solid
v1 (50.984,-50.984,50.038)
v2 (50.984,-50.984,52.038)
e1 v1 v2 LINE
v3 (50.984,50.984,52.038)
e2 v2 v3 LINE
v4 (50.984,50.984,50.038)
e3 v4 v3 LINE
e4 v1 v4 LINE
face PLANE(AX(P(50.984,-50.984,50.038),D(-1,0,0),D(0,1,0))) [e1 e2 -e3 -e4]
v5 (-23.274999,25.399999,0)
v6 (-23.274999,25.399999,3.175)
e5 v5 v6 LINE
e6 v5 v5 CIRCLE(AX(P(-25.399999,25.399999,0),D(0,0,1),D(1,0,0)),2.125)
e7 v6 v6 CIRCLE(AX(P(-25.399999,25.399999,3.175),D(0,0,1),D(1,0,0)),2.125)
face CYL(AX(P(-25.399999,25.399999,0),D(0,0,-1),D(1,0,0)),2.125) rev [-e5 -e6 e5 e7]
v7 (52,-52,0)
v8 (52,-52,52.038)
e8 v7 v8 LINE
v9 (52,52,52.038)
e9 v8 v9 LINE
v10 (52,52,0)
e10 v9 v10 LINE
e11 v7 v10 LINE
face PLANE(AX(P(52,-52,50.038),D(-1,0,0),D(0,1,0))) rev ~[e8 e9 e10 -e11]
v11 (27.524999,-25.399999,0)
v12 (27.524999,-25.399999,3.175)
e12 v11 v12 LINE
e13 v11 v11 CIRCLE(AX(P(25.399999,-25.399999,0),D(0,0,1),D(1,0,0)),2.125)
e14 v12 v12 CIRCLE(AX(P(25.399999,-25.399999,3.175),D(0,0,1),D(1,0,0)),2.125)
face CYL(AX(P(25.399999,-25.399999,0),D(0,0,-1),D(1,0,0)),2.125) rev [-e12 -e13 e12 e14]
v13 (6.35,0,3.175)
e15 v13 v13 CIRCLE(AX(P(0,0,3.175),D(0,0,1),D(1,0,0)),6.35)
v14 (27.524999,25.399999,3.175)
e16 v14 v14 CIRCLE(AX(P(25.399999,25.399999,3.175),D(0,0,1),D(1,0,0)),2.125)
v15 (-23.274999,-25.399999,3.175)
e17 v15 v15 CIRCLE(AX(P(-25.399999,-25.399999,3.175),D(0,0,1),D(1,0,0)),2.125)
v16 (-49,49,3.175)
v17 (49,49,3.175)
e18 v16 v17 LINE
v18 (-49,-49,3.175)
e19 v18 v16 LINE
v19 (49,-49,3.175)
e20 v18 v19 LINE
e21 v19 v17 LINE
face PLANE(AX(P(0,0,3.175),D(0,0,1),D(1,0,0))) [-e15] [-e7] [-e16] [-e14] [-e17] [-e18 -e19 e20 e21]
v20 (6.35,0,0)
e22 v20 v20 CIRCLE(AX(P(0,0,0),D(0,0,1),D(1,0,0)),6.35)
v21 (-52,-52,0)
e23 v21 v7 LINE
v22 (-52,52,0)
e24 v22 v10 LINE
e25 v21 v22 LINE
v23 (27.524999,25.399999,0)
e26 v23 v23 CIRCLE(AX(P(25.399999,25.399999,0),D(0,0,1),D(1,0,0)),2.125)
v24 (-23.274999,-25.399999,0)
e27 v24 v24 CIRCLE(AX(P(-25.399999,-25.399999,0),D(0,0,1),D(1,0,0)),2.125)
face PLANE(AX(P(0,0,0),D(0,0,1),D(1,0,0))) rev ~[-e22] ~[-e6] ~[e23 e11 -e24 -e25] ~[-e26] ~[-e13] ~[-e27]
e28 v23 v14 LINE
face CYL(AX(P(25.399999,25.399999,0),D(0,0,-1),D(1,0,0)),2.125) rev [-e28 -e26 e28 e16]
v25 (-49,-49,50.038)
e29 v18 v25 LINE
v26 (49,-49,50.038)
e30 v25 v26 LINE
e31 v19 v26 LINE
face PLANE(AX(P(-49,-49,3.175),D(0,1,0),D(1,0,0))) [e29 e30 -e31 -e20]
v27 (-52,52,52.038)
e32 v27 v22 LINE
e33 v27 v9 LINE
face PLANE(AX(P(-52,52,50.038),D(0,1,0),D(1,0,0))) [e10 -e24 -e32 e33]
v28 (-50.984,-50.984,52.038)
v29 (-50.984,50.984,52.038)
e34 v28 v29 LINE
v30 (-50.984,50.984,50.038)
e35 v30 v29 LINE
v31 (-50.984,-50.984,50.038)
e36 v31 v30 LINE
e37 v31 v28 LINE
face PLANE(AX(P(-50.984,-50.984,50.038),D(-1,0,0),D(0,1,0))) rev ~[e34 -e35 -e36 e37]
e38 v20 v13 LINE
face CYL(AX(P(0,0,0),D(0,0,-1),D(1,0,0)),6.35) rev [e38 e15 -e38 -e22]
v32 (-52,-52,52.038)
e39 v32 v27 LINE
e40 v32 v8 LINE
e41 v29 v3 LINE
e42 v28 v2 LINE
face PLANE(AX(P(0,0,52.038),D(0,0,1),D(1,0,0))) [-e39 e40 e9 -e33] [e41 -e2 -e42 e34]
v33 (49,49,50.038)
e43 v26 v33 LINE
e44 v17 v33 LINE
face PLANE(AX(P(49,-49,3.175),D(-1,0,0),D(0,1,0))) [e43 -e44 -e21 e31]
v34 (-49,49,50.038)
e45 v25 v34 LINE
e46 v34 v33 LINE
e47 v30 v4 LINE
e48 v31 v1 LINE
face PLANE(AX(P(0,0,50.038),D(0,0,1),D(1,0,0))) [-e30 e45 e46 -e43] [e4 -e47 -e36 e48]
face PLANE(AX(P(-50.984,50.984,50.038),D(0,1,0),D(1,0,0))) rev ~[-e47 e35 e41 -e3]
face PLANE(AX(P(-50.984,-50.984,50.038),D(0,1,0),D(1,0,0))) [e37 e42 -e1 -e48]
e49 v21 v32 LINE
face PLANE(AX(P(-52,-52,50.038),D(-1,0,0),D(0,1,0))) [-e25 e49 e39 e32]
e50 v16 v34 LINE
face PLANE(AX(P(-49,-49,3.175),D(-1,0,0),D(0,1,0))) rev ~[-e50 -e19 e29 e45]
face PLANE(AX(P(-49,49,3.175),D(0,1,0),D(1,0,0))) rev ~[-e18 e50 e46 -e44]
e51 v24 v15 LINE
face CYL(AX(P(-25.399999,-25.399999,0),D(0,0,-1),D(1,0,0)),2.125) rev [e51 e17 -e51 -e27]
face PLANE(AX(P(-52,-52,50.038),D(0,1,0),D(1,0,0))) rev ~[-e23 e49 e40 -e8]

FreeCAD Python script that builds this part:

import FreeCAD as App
import Part
import Sketcher

V = App.Vector

doc = App.newDocument("Part")
params = doc.addObject("Spreadsheet::Sheet", "Params")
for row, (alias, value) in enumerate([
    ("sketch1_diameter", "12.7 mm"),
    ("sketch1_diameter2", "4.25 mm"),
    ("sketch1_width", "104 mm"),
    ("pad1_length", "3.175 mm"),
    ("sketch2_width", "104 mm"),
    ("sketch2_width2", "98 mm"),
    ("pad2_length", "46.863 mm"),
    ("sketch3_width", "104 mm"),
    ("pad3_length", "2 mm"),
], start=1):
    params.set(f"A{row}", alias)
    params.set(f"B{row}", "=" + value)
    params.setAlias(f"B{row}", alias)

body = doc.addObject("PartDesign::Body", "Body")

sketch1 = doc.addObject("Sketcher::SketchObject", "Sketch")
body.addObject(sketch1)
sketch1.AttachmentSupport = (doc.XY_Plane, [""])
sketch1.MapMode = "FlatFace"
sketch1.addGeometry(Part.LineSegment(V(-52, 52, 0), V(-52, -52, 0)), False)
sketch1.addGeometry(Part.LineSegment(V(-52, -52, 0), V(52, -52, 0)), False)
sketch1.addGeometry(Part.LineSegment(V(52, -52, 0), V(52, 52, 0)), False)
sketch1.addGeometry(Part.LineSegment(V(52, 52, 0), V(-52, 52, 0)), False)
sketch1.addGeometry(Part.Circle(V(-25.4, -25.4, 0), V(0, 0, 1), 2.1), False)
sketch1.addGeometry(Part.Circle(V(0, 0, 0), V(0, 0, 1), 6.3), False)
sketch1.addGeometry(Part.Circle(V(25.4, -25.4, 0), V(0, 0, 1), 2.1), False)
sketch1.addGeometry(Part.Circle(V(-25.4, 25.4, 0), V(0, 0, 1), 2.1), False)
sketch1.addGeometry(Part.Circle(V(25.4, 25.4, 0), V(0, 0, 1), 2.1), False)
sketch1.addConstraint(Sketcher.Constraint("Coincident", 0, 2, 1, 1))
sketch1.addConstraint(Sketcher.Constraint("Coincident", 1, 2, 2, 1))
sketch1.addConstraint(Sketcher.Constraint("Coincident", 2, 2, 3, 1))
sketch1.addConstraint(Sketcher.Constraint("Coincident", 3, 2, 0, 1))
sketch1.addConstraint(Sketcher.Constraint("Vertical", 0))
sketch1.addConstraint(Sketcher.Constraint("Horizontal", 1))
sketch1.addConstraint(Sketcher.Constraint("Vertical", 2))
sketch1.addConstraint(Sketcher.Constraint("Horizontal", 3))
sketch1.addConstraint(Sketcher.Constraint("Coincident", 5, 3, -1, 1))
sketch1.addConstraint(Sketcher.Constraint("Equal", 4, 6))
sketch1.addConstraint(Sketcher.Constraint("Equal", 6, 7))
sketch1.addConstraint(Sketcher.Constraint("Equal", 7, 8))
sketch1.addConstraint(Sketcher.Constraint("Symmetric", 6, 3, 7, 3, -1, 1))
sketch1.addConstraint(Sketcher.Constraint("Symmetric", 4, 3, 8, 3, -1, 1))
sketch1.addConstraint(Sketcher.Constraint("Symmetric", 0, 2, 2, 2, -1, 1))
sketch1.addConstraint(Sketcher.Constraint("Symmetric", 4, 3, 6, 3, -2))
sketch1.addConstraint(Sketcher.Constraint("Equal", 3, 0))
sketch1.addConstraint(Sketcher.Constraint("Diameter", 5, 12.7))
sketch1.addConstraint(Sketcher.Constraint("Diameter", 4, 4.25))
sketch1.addConstraint(Sketcher.Constraint("DistanceX", 1, 1, 1, 2, 104.0))
sketch1.addConstraint(Sketcher.Constraint("DistanceX", 4, 3, -1, 1, 25.399999))
sketch1.addConstraint(Sketcher.Constraint("DistanceY", 4, 3, -1, 1, 25.399999))
sketch1.setExpression("Constraints[17]", "Params.sketch1_diameter")
sketch1.setExpression("Constraints[18]", "Params.sketch1_diameter2")
sketch1.setExpression("Constraints[19]", "Params.sketch1_width")
pad1 = doc.addObject("PartDesign::Pad", "Pad")
body.addObject(pad1)
pad1.Profile = sketch1
pad1.setExpression("Length", "Params.pad1_length")

sketch2 = doc.addObject("Sketcher::SketchObject", "Sketch001")
body.addObject(sketch2)
sketch2.AttachmentSupport = (doc.XY_Plane, [""])
sketch2.MapMode = "FlatFace"
sketch2.AttachmentOffset = App.Placement(V(0, 0, 3.175), App.Rotation())
sketch2.addGeometry(Part.LineSegment(V(-52, 52, 0), V(-52, -52, 0)), False)
sketch2.addGeometry(Part.LineSegment(V(-52, -52, 0), V(52, -52, 0)), False)
sketch2.addGeometry(Part.LineSegment(V(52, -52, 0), V(52, 52, 0)), False)
sketch2.addGeometry(Part.LineSegment(V(52, 52, 0), V(-52, 52, 0)), False)
sketch2.addGeometry(Part.LineSegment(V(49, -49, 0), V(-49, -49, 0)), False)
sketch2.addGeometry(Part.LineSegment(V(-49, -49, 0), V(-49, 49, 0)), False)
sketch2.addGeometry(Part.LineSegment(V(-49, 49, 0), V(49, 49, 0)), False)
sketch2.addGeometry(Part.LineSegment(V(49, 49, 0), V(49, -49, 0)), False)
sketch2.addConstraint(Sketcher.Constraint("Coincident", 0, 2, 1, 1))
sketch2.addConstraint(Sketcher.Constraint("Coincident", 1, 2, 2, 1))
sketch2.addConstraint(Sketcher.Constraint("Coincident", 2, 2, 3, 1))
sketch2.addConstraint(Sketcher.Constraint("Coincident", 3, 2, 0, 1))
sketch2.addConstraint(Sketcher.Constraint("Coincident", 4, 2, 5, 1))
sketch2.addConstraint(Sketcher.Constraint("Coincident", 5, 2, 6, 1))
sketch2.addConstraint(Sketcher.Constraint("Coincident", 6, 2, 7, 1))
sketch2.addConstraint(Sketcher.Constraint("Coincident", 7, 2, 4, 1))
sketch2.addConstraint(Sketcher.Constraint("Vertical", 0))
sketch2.addConstraint(Sketcher.Constraint("Horizontal", 1))
sketch2.addConstraint(Sketcher.Constraint("Vertical", 2))
sketch2.addConstraint(Sketcher.Constraint("Horizontal", 3))
sketch2.addConstraint(Sketcher.Constraint("Horizontal", 4))
sketch2.addConstraint(Sketcher.Constraint("Vertical", 5))
sketch2.addConstraint(Sketcher.Constraint("Horizontal", 6))
sketch2.addConstraint(Sketcher.Constraint("Vertical", 7))
sketch2.addConstraint(Sketcher.Constraint("Symmetric", 0, 2, 2, 2, -1, 1))
sketch2.addConstraint(Sketcher.Constraint("Symmetric", 4, 2, 6, 2, -1, 1))
sketch2.addConstraint(Sketcher.Constraint("Equal", 3, 0))
sketch2.addConstraint(Sketcher.Constraint("Equal", 6, 5))
sketch2.addConstraint(Sketcher.Constraint("DistanceX", 1, 1, 1, 2, 104.0))
sketch2.addConstraint(Sketcher.Constraint("DistanceX", 4, 2, 4, 1, 98.0))
sketch2.setExpression("Constraints[20]", "Params.sketch2_width")
sketch2.setExpression("Constraints[21]", "Params.sketch2_width2")
pad2 = doc.addObject("PartDesign::Pad", "Pad001")
body.addObject(pad2)
pad2.Profile = sketch2
pad2.setExpression("Length", "Params.pad2_length")

sketch3 = doc.addObject("Sketcher::SketchObject", "Sketch002")
body.addObject(sketch3)
sketch3.AttachmentSupport = (doc.XY_Plane, [""])
sketch3.MapMode = "FlatFace"
sketch3.AttachmentOffset = App.Placement(V(0, 0, 50.038), App.Rotation())
sketch3.addGeometry(Part.LineSegment(V(-52, 52, 0), V(-52, -52, 0)), False)
sketch3.addGeometry(Part.LineSegment(V(-52, -52, 0), V(52, -52, 0)), False)
sketch3.addGeometry(Part.LineSegment(V(52, -52, 0), V(52, 52, 0)), False)
sketch3.addGeometry(Part.LineSegment(V(52, 52, 0), V(-52, 52, 0)), False)
sketch3.addGeometry(Part.LineSegment(V(51, -51, 0), V(-51, -51, 0)), False)
sketch3.addGeometry(Part.LineSegment(V(-51, -51, 0), V(-51, 51, 0)), False)
sketch3.addGeometry(Part.LineSegment(V(-51, 51, 0), V(51, 51, 0)), False)
sketch3.addGeometry(Part.LineSegment(V(51, 51, 0), V(51, -51, 0)), False)
sketch3.addConstraint(Sketcher.Constraint("Coincident", 0, 2, 1, 1))
sketch3.addConstraint(Sketcher.Constraint("Coincident", 1, 2, 2, 1))
sketch3.addConstraint(Sketcher.Constraint("Coincident", 2, 2, 3, 1))
sketch3.addConstraint(Sketcher.Constraint("Coincident", 3, 2, 0, 1))
sketch3.addConstraint(Sketcher.Constraint("Coincident", 4, 2, 5, 1))
sketch3.addConstraint(Sketcher.Constraint("Coincident", 5, 2, 6, 1))
sketch3.addConstraint(Sketcher.Constraint("Coincident", 6, 2, 7, 1))
sketch3.addConstraint(Sketcher.Constraint("Coincident", 7, 2, 4, 1))
sketch3.addConstraint(Sketcher.Constraint("Vertical", 0))
sketch3.addConstraint(Sketcher.Constraint("Horizontal", 1))
sketch3.addConstraint(Sketcher.Constraint("Vertical", 2))
sketch3.addConstraint(Sketcher.Constraint("Horizontal", 3))
sketch3.addConstraint(Sketcher.Constraint("Horizontal", 4))
sketch3.addConstraint(Sketcher.Constraint("Vertical", 5))
sketch3.addConstraint(Sketcher.Constraint("Horizontal", 6))
sketch3.addConstraint(Sketcher.Constraint("Vertical", 7))
sketch3.addConstraint(Sketcher.Constraint("Symmetric", 0, 2, 2, 2, -1, 1))
sketch3.addConstraint(Sketcher.Constraint("Symmetric", 4, 2, 6, 2, -1, 1))
sketch3.addConstraint(Sketcher.Constraint("Equal", 3, 0))
sketch3.addConstraint(Sketcher.Constraint("Equal", 6, 5))
sketch3.addConstraint(Sketcher.Constraint("DistanceX", 1, 1, 1, 2, 104.0))
sketch3.addConstraint(Sketcher.Constraint("DistanceX", 4, 2, 4, 1, 101.968))
sketch3.setExpression("Constraints[20]", "Params.sketch3_width")
pad3 = doc.addObject("PartDesign::Pad", "Pad002")
body.addObject(pad3)
pad3.Profile = sketch3
pad3.setExpression("Length", "Params.pad3_length")

doc.recompute()
